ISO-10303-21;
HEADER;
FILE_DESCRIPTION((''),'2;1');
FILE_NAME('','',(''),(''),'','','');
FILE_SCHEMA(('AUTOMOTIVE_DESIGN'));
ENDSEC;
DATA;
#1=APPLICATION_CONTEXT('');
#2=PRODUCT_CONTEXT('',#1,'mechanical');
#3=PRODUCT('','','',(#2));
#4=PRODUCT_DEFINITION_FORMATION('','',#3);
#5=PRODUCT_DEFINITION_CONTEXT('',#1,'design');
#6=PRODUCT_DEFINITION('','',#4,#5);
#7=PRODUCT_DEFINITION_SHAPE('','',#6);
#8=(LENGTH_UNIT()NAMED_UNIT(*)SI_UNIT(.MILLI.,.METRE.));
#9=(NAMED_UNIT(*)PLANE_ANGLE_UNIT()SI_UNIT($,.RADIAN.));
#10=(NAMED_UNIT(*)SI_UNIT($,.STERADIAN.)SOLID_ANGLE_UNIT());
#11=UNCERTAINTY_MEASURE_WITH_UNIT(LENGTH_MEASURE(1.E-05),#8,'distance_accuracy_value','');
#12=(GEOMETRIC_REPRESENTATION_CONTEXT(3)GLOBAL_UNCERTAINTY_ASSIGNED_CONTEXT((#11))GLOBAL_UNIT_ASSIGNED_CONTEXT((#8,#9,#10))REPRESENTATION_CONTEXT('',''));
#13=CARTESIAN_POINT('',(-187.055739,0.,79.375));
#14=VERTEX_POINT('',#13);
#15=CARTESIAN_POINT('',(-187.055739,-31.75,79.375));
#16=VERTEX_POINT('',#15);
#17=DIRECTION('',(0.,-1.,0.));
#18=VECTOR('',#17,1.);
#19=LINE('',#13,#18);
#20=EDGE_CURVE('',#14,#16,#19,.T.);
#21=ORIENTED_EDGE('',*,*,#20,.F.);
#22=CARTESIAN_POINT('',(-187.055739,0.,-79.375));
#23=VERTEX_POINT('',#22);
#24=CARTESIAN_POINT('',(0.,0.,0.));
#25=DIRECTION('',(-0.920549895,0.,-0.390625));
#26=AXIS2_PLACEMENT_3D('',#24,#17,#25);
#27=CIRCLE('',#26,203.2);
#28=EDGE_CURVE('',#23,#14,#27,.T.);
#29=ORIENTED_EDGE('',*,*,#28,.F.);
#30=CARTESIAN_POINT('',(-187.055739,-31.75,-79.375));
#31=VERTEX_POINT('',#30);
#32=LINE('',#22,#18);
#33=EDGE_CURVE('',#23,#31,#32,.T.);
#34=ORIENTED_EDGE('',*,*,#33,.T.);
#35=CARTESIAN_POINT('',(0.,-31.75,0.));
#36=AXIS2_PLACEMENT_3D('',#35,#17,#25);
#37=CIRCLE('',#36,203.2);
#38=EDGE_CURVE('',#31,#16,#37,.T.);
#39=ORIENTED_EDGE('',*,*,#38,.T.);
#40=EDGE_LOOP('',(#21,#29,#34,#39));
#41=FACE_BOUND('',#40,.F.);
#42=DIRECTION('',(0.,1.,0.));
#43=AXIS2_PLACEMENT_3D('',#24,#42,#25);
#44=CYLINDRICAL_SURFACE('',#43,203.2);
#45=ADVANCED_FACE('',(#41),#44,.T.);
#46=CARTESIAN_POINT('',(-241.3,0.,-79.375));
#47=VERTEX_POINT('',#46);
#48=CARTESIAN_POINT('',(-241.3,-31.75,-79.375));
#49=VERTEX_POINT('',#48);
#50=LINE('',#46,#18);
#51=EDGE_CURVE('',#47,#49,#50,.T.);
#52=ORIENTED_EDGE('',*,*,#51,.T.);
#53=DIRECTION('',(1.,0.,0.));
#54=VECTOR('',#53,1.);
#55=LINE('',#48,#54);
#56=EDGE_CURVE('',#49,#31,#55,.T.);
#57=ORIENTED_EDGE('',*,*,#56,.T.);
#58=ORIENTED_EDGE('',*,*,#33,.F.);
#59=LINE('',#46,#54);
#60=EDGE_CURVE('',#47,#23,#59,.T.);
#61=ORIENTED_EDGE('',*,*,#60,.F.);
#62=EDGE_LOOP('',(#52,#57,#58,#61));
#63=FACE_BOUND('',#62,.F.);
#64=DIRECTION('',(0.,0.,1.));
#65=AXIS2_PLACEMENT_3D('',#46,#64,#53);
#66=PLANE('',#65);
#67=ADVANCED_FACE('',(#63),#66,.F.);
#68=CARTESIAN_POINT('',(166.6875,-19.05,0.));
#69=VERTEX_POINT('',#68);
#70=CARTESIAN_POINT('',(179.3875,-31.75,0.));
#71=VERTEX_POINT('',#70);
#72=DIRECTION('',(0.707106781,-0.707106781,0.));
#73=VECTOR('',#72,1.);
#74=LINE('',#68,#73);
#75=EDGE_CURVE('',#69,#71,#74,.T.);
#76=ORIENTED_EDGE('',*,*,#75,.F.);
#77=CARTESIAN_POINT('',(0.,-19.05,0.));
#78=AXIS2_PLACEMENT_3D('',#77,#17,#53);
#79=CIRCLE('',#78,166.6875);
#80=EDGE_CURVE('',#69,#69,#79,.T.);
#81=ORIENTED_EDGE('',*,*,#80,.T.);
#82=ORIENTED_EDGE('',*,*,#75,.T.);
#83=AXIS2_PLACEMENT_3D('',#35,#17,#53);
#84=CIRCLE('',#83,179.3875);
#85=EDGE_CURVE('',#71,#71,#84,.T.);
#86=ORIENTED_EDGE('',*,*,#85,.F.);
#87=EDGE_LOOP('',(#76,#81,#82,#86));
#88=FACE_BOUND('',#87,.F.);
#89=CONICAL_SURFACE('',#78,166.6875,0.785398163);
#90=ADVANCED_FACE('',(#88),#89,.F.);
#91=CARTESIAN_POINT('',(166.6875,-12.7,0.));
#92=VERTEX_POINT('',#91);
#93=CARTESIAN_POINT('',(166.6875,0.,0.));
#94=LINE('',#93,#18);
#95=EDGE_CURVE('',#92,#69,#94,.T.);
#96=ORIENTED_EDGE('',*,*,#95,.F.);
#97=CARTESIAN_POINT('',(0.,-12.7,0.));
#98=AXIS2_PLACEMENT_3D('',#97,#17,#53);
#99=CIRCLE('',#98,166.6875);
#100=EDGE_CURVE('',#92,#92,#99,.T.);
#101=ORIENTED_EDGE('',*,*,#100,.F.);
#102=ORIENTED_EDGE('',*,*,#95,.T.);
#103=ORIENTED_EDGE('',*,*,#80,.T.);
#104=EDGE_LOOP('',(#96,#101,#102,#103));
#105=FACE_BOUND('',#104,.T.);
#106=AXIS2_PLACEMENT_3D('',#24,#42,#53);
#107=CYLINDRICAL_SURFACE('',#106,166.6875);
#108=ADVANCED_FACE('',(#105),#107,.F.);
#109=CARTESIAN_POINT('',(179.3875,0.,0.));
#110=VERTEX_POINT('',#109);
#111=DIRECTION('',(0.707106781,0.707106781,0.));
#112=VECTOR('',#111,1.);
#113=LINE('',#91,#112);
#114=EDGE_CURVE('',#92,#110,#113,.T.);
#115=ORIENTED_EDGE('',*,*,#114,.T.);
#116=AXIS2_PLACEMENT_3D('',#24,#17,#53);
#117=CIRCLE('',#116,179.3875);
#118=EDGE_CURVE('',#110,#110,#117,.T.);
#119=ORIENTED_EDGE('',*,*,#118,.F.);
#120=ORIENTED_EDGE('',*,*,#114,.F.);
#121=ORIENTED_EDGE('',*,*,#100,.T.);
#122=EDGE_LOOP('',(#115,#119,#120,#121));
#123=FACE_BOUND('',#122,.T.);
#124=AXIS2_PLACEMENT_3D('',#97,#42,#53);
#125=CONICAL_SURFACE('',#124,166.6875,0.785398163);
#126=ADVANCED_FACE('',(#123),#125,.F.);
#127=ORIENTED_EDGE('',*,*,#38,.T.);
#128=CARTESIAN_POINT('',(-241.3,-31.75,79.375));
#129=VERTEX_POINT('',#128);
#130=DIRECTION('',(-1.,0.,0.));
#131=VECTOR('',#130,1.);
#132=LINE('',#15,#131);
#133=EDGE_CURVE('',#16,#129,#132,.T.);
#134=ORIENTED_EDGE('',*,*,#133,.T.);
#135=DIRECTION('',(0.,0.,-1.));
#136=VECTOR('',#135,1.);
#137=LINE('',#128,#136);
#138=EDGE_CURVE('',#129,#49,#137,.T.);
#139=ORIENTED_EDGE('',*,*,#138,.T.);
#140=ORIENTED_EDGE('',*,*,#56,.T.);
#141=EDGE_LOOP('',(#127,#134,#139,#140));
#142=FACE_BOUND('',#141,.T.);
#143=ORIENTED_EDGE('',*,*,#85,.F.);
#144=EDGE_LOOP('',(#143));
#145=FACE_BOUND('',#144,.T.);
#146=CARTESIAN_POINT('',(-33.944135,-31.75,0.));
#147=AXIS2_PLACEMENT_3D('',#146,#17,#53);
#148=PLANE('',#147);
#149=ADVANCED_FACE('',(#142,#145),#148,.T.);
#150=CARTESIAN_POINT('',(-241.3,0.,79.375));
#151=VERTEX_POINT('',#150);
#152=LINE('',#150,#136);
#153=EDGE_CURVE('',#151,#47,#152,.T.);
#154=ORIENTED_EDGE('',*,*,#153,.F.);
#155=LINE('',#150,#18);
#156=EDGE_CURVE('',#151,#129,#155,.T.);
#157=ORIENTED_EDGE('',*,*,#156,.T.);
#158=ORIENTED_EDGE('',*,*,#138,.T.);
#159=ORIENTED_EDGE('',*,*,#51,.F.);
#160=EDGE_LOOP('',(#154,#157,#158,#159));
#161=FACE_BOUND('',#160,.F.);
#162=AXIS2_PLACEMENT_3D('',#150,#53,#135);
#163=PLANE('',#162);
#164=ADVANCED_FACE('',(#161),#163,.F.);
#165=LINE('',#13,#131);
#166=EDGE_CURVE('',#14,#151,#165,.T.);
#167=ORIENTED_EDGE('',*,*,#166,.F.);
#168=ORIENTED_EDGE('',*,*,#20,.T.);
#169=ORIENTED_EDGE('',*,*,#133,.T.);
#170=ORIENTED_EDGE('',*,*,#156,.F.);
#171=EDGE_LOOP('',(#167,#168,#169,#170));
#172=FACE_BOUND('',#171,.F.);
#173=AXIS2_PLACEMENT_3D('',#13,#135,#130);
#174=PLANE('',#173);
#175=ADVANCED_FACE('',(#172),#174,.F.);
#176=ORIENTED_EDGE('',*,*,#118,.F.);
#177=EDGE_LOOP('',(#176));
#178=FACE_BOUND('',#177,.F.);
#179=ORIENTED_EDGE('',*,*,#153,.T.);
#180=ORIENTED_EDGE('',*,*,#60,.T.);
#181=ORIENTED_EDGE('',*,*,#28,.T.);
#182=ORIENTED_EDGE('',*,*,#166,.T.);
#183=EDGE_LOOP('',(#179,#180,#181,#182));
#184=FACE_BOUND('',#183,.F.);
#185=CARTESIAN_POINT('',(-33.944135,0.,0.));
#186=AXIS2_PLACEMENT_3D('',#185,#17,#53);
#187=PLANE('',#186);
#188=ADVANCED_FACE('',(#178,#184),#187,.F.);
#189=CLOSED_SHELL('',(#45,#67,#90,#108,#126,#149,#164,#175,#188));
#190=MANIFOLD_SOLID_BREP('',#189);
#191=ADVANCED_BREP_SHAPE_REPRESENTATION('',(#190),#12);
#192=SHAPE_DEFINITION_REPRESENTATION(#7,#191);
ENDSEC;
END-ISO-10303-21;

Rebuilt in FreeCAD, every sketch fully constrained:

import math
import FreeCAD as App
import Part
import Sketcher
from FreeCAD import Vector
Q = App.Units.Quantity


def edges_at(feature, points):
    """Names of the edges that pass closest to the given points."""
    edges = feature.Shape.Edges
    near = lambda p: min(range(len(edges)), key=lambda i: edges[i].distToShape(Part.Vertex(*p))[0])
    return sorted({f"Edge{near(p) + 1}" for p in points})

doc = App.newDocument("Part")
body = doc.addObject("PartDesign::Body", "Body")

sketch1 = doc.addObject("Sketcher::SketchObject", "Sketch")
body.addObject(sketch1)
sketch1.AttachmentSupport = (doc.XZ_Plane, [""])
sketch1.MapMode = "FlatFace"
sketch1.addGeometry([
    Part.LineSegment(Vector(-241.3, -79.375, 0), Vector(-187.055739, -79.375, 0)),
    Part.ArcOfCircle(Part.Circle(Vector(0, 0, 0), Vector(0, 0, 1), 203.2), math.radians(-157.006606), math.radians(157.006606)),
    Part.LineSegment(Vector(-187.055739, 79.375, 0), Vector(-241.3, 79.375, 0)),
    Part.LineSegment(Vector(-241.3, 79.375, 0), Vector(-241.3, -79.375, 0)),
    Part.Circle(Vector(0, 0, 0), Vector(0, 0, 1), 166.6875),
], False)
sketch1.addConstraint([
    Sketcher.Constraint("Coincident", 0, 2, 1, 1),
    Sketcher.Constraint("Coincident", 1, 2, 2, 1),
    Sketcher.Constraint("Coincident", 2, 2, 3, 1),
    Sketcher.Constraint("Coincident", 3, 2, 0, 1),
    Sketcher.Constraint("Horizontal", 0),
    Sketcher.Constraint("Horizontal", 2),
    Sketcher.Constraint("Vertical", 3),
    Sketcher.Constraint("Coincident", 1, 3, -1, 1),
    Sketcher.Constraint("Coincident", 4, 3, -1, 1),
    Sketcher.Constraint("Vertical", 0, 2, 1, 2),
    Sketcher.Constraint("Radius", 1, Q("8 in")),
    Sketcher.Constraint("Diameter", 4, Q("13.125 in")),
    Sketcher.Constraint("DistanceY", 3, 2, 3, 1, Q("6.25 in")),
    Sketcher.Constraint("DistanceX", 2, 2, -1, 1, Q("9.5 in")),
])
pad1 = doc.addObject("PartDesign::Pad", "Pad")
body.addObject(pad1)
pad1.Profile = sketch1
pad1.Length = Q("1.25 in")
doc.recompute()

chamfer = doc.addObject("PartDesign::Chamfer", "Chamfer")
body.addObject(chamfer)
chamfer.Base = (pad1, edges_at(pad1, [(-166.688, -31.75, 0), (-166.688, 0, 0)]))
chamfer.Size = Q("0.5 in")

doc.recompute()
